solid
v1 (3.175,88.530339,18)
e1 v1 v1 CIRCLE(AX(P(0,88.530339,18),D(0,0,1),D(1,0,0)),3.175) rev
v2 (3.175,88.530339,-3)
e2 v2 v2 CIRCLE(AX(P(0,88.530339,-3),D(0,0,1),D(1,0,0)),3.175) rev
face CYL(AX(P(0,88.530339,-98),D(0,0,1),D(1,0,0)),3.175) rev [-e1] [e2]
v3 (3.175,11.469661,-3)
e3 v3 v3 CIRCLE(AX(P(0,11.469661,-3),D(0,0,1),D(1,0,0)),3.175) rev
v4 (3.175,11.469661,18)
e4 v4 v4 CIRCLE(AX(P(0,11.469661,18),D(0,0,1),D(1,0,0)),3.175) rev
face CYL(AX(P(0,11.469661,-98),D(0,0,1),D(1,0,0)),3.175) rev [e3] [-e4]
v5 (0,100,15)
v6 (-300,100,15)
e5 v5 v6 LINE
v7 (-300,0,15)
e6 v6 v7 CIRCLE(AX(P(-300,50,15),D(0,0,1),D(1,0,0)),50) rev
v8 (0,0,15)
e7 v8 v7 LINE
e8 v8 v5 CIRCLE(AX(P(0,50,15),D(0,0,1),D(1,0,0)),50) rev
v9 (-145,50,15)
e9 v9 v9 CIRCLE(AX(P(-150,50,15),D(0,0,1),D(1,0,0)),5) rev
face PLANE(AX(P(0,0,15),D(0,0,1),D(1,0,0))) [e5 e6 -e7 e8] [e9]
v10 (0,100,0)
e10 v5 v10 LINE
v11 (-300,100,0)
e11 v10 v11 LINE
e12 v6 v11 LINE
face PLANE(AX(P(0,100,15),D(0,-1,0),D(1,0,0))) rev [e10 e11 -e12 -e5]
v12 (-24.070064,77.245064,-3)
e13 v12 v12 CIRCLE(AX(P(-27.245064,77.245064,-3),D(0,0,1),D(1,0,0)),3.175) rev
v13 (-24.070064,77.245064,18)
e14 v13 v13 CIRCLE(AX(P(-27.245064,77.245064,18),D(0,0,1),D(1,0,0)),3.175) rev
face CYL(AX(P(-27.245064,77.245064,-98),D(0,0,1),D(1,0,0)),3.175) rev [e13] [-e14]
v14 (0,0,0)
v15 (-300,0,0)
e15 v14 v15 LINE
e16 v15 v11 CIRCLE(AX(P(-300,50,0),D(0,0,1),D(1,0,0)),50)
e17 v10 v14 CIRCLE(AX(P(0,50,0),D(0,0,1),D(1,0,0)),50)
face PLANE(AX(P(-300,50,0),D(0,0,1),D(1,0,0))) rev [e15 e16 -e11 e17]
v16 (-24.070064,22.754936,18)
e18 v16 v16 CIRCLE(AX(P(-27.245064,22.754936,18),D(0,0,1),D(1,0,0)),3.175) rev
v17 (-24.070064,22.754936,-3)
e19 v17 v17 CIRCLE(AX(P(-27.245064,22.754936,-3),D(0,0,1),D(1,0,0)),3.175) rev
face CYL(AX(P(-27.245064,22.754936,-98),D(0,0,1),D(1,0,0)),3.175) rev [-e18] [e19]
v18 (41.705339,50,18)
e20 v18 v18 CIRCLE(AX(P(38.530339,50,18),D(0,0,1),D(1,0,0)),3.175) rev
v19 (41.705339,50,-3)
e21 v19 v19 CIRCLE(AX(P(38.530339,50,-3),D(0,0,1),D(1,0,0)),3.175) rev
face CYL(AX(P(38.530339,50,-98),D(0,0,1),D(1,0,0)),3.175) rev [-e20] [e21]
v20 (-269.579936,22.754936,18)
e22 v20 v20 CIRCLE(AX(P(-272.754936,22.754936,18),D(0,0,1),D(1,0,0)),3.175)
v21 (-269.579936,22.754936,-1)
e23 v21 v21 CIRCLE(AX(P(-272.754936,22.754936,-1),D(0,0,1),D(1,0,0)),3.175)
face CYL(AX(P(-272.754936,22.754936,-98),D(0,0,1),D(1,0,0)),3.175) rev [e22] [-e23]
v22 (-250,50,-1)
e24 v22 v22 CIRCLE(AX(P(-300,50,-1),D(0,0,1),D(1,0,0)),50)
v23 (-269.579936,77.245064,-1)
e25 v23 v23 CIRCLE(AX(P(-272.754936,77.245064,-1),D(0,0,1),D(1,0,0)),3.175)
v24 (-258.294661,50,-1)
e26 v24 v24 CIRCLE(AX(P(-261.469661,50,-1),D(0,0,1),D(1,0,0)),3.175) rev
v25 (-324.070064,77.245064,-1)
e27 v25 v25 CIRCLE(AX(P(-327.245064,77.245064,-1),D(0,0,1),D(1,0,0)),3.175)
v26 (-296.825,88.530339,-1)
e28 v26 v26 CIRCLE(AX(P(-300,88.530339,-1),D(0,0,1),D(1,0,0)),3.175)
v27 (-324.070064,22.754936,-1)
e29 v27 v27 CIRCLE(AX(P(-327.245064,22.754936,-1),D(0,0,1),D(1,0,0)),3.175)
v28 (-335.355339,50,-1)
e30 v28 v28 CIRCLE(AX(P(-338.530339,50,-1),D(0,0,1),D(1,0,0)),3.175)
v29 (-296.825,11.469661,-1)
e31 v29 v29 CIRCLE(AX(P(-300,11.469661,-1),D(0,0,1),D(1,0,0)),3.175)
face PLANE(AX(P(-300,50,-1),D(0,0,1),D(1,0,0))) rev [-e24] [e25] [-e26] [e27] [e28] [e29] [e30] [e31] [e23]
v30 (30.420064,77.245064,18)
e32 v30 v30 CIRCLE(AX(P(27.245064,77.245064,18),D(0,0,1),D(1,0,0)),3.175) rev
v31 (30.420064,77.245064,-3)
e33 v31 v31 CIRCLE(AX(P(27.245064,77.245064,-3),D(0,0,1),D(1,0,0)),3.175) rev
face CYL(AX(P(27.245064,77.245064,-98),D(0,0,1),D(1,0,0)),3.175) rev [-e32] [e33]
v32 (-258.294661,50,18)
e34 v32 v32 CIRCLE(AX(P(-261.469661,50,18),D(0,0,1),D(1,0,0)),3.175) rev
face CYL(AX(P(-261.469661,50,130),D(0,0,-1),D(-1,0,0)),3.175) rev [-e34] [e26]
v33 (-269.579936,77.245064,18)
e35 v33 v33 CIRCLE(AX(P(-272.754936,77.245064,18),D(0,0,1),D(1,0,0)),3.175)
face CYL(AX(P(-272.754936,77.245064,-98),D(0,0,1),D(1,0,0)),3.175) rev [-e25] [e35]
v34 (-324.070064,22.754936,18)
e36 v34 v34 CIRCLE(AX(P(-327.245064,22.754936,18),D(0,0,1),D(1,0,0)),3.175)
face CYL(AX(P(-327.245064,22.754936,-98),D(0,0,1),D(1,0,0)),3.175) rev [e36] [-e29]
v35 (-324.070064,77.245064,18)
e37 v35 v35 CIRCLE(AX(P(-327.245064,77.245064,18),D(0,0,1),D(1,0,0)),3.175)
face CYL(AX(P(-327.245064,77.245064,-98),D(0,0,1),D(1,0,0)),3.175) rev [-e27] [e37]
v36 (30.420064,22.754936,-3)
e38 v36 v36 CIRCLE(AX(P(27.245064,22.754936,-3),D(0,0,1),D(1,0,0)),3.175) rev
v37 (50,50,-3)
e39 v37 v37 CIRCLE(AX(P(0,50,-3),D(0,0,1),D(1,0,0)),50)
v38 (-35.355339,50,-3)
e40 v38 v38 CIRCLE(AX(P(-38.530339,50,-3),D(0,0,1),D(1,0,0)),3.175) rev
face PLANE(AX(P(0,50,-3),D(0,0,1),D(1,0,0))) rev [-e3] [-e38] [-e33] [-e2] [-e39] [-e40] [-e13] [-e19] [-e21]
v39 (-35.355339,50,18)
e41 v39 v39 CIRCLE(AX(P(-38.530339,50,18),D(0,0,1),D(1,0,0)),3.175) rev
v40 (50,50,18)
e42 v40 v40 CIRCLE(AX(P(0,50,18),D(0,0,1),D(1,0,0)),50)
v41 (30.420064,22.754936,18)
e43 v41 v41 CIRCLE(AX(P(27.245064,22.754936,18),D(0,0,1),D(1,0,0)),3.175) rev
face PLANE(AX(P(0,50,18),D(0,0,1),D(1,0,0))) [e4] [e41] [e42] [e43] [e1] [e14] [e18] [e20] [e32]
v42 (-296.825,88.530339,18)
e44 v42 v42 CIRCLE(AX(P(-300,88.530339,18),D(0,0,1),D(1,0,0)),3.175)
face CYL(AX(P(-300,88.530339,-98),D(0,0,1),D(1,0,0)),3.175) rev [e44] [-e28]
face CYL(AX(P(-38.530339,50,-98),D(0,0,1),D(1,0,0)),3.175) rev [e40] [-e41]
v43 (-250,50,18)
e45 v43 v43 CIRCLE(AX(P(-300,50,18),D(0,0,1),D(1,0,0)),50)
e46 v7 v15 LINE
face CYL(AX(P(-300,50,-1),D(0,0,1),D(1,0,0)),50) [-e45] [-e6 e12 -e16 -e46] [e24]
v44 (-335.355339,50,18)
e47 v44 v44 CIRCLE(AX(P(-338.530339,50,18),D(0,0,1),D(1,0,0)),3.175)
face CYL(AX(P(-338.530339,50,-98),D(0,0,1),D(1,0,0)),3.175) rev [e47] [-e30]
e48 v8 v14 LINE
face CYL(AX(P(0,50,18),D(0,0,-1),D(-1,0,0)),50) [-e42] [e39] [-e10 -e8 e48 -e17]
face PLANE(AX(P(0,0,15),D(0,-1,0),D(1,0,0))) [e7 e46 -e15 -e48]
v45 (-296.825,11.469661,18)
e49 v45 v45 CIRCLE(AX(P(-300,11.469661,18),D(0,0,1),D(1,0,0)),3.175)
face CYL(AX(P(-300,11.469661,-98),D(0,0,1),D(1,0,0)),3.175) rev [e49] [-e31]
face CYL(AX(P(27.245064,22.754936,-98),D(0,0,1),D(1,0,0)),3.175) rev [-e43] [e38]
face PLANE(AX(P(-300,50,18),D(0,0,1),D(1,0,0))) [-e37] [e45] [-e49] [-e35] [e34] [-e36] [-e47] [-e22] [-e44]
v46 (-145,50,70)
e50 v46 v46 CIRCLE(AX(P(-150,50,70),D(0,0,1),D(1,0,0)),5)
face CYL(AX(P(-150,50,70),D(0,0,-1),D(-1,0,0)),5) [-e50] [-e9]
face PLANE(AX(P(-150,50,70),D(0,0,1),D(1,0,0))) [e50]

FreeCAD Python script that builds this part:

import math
import FreeCAD as App
import Part
import Sketcher

V = App.Vector


def add_polygon(sketch, points):
    """Adds a closed chain of lines whose ends are joined by coincident constraints."""
    first, n = sketch.GeometryCount, len(points)
    for a, b in zip(points, points[1:] + points[:1]):
        sketch.addGeometry(Part.LineSegment(App.Vector(*a, 0), App.Vector(*b, 0)), False)
    for i in range(n):
        sketch.addConstraint(Sketcher.Constraint("Coincident", first + i, 2, first + (i + 1) % n, 1))

doc = App.newDocument("Part")
params = doc.addObject("Spreadsheet::Sheet", "Params")
for row, (alias, value) in enumerate([
    ("sketch1_diameter", "100 mm"),
    ("pad1_length", "13 mm"),
    ("sketch2_diameter", "100 mm"),
    ("pad2_length", "13 mm"),
    ("sketch3_width", "300 mm"),
    ("sketch3_height", "100 mm"),
    ("pad3_length", "15 mm"),
    ("sketch4_diameter", "10 mm"),
    ("pad4_length", "70 mm"),
    ("sketch5_diameter", "100 mm"),
    ("pocket1_length", "41 mm"),
    ("sketch6_diameter", "100 mm"),
    ("pad5_length", "18 mm"),
    ("pad5_length2", "1 mm"),
    ("sketch7_diameter", "13 mm"),
    ("pocket2_length", "242.8 mm"),
    ("sketch8_diameter", "6.35 mm"),
    ("sketch9_diameter", "100 mm"),
    ("pocket4_length", "34 mm"),
    ("sketch10_diameter", "100 mm"),
    ("pad6_length", "18 mm"),
    ("pad6_length2", "3 mm"),
    ("sketch11_diameter", "6.35 mm"),
], start=1):
    params.set(f"A{row}", alias)
    params.set(f"B{row}", "=" + value)
    params.setAlias(f"B{row}", alias)

body = doc.addObject("PartDesign::Body", "Body")

# Sketch on XY plane
sketch1 = body.newObject("Sketcher::SketchObject", "Sketch")
sketch1.AttachmentSupport = (doc.getObject("XY_Plane"), [""])
sketch1.MapMode = "FlatFace"
sketch1.addGeometry(Part.Circle(V(0, 50, 0), V(0, 0, 1), 50), False)
sketch1.addConstraint(Sketcher.Constraint("PointOnObject", 0, 3, -2))
sketch1.addConstraint(Sketcher.Constraint("Diameter", 0, 100.0))
sketch1.addConstraint(Sketcher.Constraint("DistanceY", -1, 1, 0, 3, 50.0))
sketch1.setExpression("Constraints[1]", "Params.sketch1_diameter")
pad1 = body.newObject("PartDesign::Pad", "Pad")
pad1.Profile = sketch1
pad1.setExpression("Length", "Params.pad1_length")
body2 = doc.addObject("PartDesign::Body", "Body001")

# Sketch on XY plane
sketch2 = body2.newObject("Sketcher::SketchObject", "Sketch001")
sketch2.AttachmentSupport = (doc.getObject("XY_Plane001"), [""])
sketch2.MapMode = "FlatFace"
sketch2.addGeometry(Part.Circle(V(-300, 50, 0), V(0, 0, 1), 50), False)
sketch2.addConstraint(Sketcher.Constraint("Diameter", 0, 100.0))
sketch2.addConstraint(Sketcher.Constraint("DistanceX", 0, 3, -1, 1, 300.0))
sketch2.addConstraint(Sketcher.Constraint("DistanceY", -1, 1, 0, 3, 50.0))
sketch2.setExpression("Constraints[0]", "Params.sketch2_diameter")
pad2 = body2.newObject("PartDesign::Pad", "Pad001")
pad2.Profile = sketch2
pad2.setExpression("Length", "Params.pad2_length")
body.AllowCompound = True
doc.recompute()

boolean = body.newObject("PartDesign::Boolean", "Boolean")
boolean.Type = "Fuse"
boolean.addObjects([body2])

# Sketch on XY plane
sketch3 = body.newObject("Sketcher::SketchObject", "Sketch002")
sketch3.AttachmentSupport = (doc.getObject("XY_Plane"), [""])
sketch3.MapMode = "FlatFace"
add_polygon(sketch3, [(-300, 100), (-300, 0), (0, 0), (0, 100)])  # lines 0-3
sketch3.addConstraint(Sketcher.Constraint("Vertical", 0))
sketch3.addConstraint(Sketcher.Constraint("Horizontal", 1))
sketch3.addConstraint(Sketcher.Constraint("Vertical", 2))
sketch3.addConstraint(Sketcher.Constraint("Horizontal", 3))
sketch3.addConstraint(Sketcher.Constraint("Coincident", 1, 2, -1, 1))
sketch3.addConstraint(Sketcher.Constraint("DistanceX", 1, 1, 1, 2, 300.0))
sketch3.addConstraint(Sketcher.Constraint("DistanceY", 0, 2, 0, 1, 100.0))
sketch3.setExpression("Constraints[9]", "Params.sketch3_width")
sketch3.setExpression("Constraints[10]", "Params.sketch3_height")
pad3 = body.newObject("PartDesign::Pad", "Pad002")
pad3.Profile = sketch3
pad3.setExpression("Length", "Params.pad3_length")

# Sketch on XY plane
sketch4 = body.newObject("Sketcher::SketchObject", "Sketch003")
sketch4.AttachmentSupport = (doc.getObject("XY_Plane"), [""])
sketch4.MapMode = "FlatFace"
sketch4.addGeometry(Part.Circle(V(-150, 50, 0), V(0, 0, 1), 5), False)
sketch4.addConstraint(Sketcher.Constraint("Diameter", 0, 10.0))
sketch4.addConstraint(Sketcher.Constraint("DistanceX", 0, 3, -1, 1, 150.0))
sketch4.addConstraint(Sketcher.Constraint("DistanceY", -1, 1, 0, 3, 50.0))
sketch4.setExpression("Constraints[0]", "Params.sketch4_diameter")
pad4 = body.newObject("PartDesign::Pad", "Pad003")
pad4.Profile = sketch4
pad4.setExpression("Length", "Params.pad4_length")

# Sketch on XY plane
sketch5 = body.newObject("Sketcher::SketchObject", "Sketch004")
sketch5.AttachmentSupport = (doc.getObject("XY_Plane"), [""])
sketch5.MapMode = "FlatFace"
sketch5.addGeometry(Part.Circle(V(-300, 50, 0), V(0, 0, 1), 50), False)
sketch5.addConstraint(Sketcher.Constraint("Diameter", 0, 100.0))
sketch5.addConstraint(Sketcher.Constraint("DistanceX", 0, 3, -1, 1, 300.0))
sketch5.addConstraint(Sketcher.Constraint("DistanceY", -1, 1, 0, 3, 50.0))
sketch5.setExpression("Constraints[0]", "Params.sketch5_diameter")
pocket1 = body.newObject("PartDesign::Pocket", "Pocket")
pocket1.Profile = sketch5
pocket1.setExpression("Length", "Params.pocket1_length")
pocket1.Reversed = True

# Sketch on XY plane
sketch6 = body.newObject("Sketcher::SketchObject", "Sketch005")
sketch6.AttachmentSupport = (doc.getObject("XY_Plane"), [""])
sketch6.MapMode = "FlatFace"
sketch6.addGeometry(Part.Circle(V(-300, 50, 0), V(0, 0, 1), 50), False)
sketch6.addConstraint(Sketcher.Constraint("Diameter", 0, 100.0))
sketch6.addConstraint(Sketcher.Constraint("DistanceX", 0, 3, -1, 1, 300.0))
sketch6.addConstraint(Sketcher.Constraint("DistanceY", -1, 1, 0, 3, 50.0))
sketch6.setExpression("Constraints[0]", "Params.sketch6_diameter")
pad5 = body.newObject("PartDesign::Pad", "Pad004")
pad5.Profile = sketch6
pad5.Type = "TwoLengths"
pad5.setExpression("Length", "Params.pad5_length")
pad5.setExpression("Length2", "Params.pad5_length2")

# Sketch on XY plane
sketch7 = body.newObject("Sketcher::SketchObject", "Sketch006")
sketch7.AttachmentSupport = (doc.getObject("XY_Plane"), [""])
sketch7.MapMode = "FlatFace"
sketch7.addGeometry(Part.Circle(V(0, 50, 0), V(0, 0, 1), 6), False)
sketch7.addConstraint(Sketcher.Constraint("PointOnObject", 0, 3, -2))
sketch7.addConstraint(Sketcher.Constraint("Diameter", 0, 13.0))
sketch7.addConstraint(Sketcher.Constraint("DistanceY", -1, 1, 0, 3, 50.0))
sketch7.setExpression("Constraints[1]", "Params.sketch7_diameter")
pocket2 = body.newObject("PartDesign::Pocket", "Pocket001")
pocket2.Profile = sketch7
pocket2.setExpression("Length", "Params.pocket2_length")
pocket2.Reversed = True

# Sketch on XY plane
sketch8 = body.newObject("Sketcher::SketchObject", "Sketch007")
sketch8.AttachmentSupport = (doc.getObject("XY_Plane"), [""])
sketch8.MapMode = "FlatFace"
sketch8.addGeometry(Part.Circle(V(-261.5, 50, 0), V(0, 0, 1), 3.2), False)
sketch8.addConstraint(Sketcher.Constraint("Diameter", 0, 6.35))
sketch8.addConstraint(Sketcher.Constraint("DistanceY", -1, 1, 0, 3, 50.0))
sketch8.addConstraint(Sketcher.Constraint("DistanceX", 0, 3, -1, 1, 261.469661))
sketch8.setExpression("Constraints[0]", "Params.sketch8_diameter")
pocket3 = body.newObject("PartDesign::Pocket", "Pocket002")
pocket3.Profile = sketch8
pocket3.Type = "ThroughAll"
pocket3.Midplane = True

# Sketch on XY plane
sketch9 = body.newObject("Sketcher::SketchObject", "Sketch008")
sketch9.AttachmentSupport = (doc.getObject("XY_Plane"), [""])
sketch9.MapMode = "FlatFace"
sketch9.addGeometry(Part.Circle(V(0, 50, 0), V(0, 0, 1), 50), False)
sketch9.addConstraint(Sketcher.Constraint("PointOnObject", 0, 3, -2))
sketch9.addConstraint(Sketcher.Constraint("Diameter", 0, 100.0))
sketch9.addConstraint(Sketcher.Constraint("DistanceY", -1, 1, 0, 3, 50.0))
sketch9.setExpression("Constraints[1]", "Params.sketch9_diameter")
pocket4 = body.newObject("PartDesign::Pocket", "Pocket003")
pocket4.Profile = sketch9
pocket4.setExpression("Length", "Params.pocket4_length")
pocket4.Reversed = True

# Sketch on XY plane
sketch10 = body.newObject("Sketcher::SketchObject", "Sketch009")
sketch10.AttachmentSupport = (doc.getObject("XY_Plane"), [""])
sketch10.MapMode = "FlatFace"
sketch10.addGeometry(Part.Circle(V(0, 50, 0), V(0, 0, 1), 50), False)
sketch10.addConstraint(Sketcher.Constraint("PointOnObject", 0, 3, -2))
sketch10.addConstraint(Sketcher.Constraint("Diameter", 0, 100.0))
sketch10.addConstraint(Sketcher.Constraint("DistanceY", -1, 1, 0, 3, 50.0))
sketch10.setExpression("Constraints[1]", "Params.sketch10_diameter")
pad6 = body.newObject("PartDesign::Pad", "Pad005")
pad6.Profile = sketch10
pad6.Type = "TwoLengths"
pad6.setExpression("Length", "Params.pad6_length")
pad6.setExpression("Length2", "Params.pad6_length2")

# Sketch on XY plane
sketch11 = body.newObject("Sketcher::SketchObject", "Sketch010")
sketch11.AttachmentSupport = (doc.getObject("XY_Plane"), [""])
sketch11.MapMode = "FlatFace"
sketch11.addGeometry(Part.Circle(V(-272.8, 77.2, 0), V(0, 0, 1), 3.2), False)
sketch11.addGeometry(Part.ArcOfCircle(Part.Circle(V(-300, 88.5, 0), V(0, 0, 1), 3.2), math.radians(0), math.radians(90)), False)
sketch11.addGeometry(Part.ArcOfCircle(Part.Circle(V(-300, 88.5, 0), V(0, 0, 1), 3.2), math.radians(90), math.radians(270)), False)
sketch11.addGeometry(Part.ArcOfCircle(Part.Circle(V(-300, 88.5, 0), V(0, 0, 1), 3.2), math.radians(-90), math.radians(0)), False)
sketch11.addGeometry(Part.Circle(V(-327.2, 77.2, 0), V(0, 0, 1), 3.2), False)
sketch11.addGeometry(Part.Circle(V(-338.5, 50, 0), V(0, 0, 1), 3.2), False)
sketch11.addGeometry(Part.ArcOfCircle(Part.Circle(V(-327.2, 22.8, 0), V(0, 0, 1), 3.2), math.radians(45), math.radians(225)), False)
sketch11.addGeometry(Part.ArcOfCircle(Part.Circle(V(-327.2, 22.8, 0), V(0, 0, 1), 3.2), math.radians(-135), math.radians(0)), False)
sketch11.addGeometry(Part.ArcOfCircle(Part.Circle(V(-327.2, 22.8, 0), V(0, 0, 1), 3.2), math.radians(0), math.radians(45)), False)
sketch11.addGeometry(Part.ArcOfCircle(Part.Circle(V(-300, 11.5, 0), V(0, 0, 1), 3.2), math.radians(90), math.radians(270)), False)
sketch11.addGeometry(Part.ArcOfCircle(Part.Circle(V(-300, 11.5, 0), V(0, 0, 1), 3.2), math.radians(-90), math.radians(0)), False)
sketch11.addGeometry(Part.ArcOfCircle(Part.Circle(V(-300, 11.5, 0), V(0, 0, 1), 3.2), math.radians(0), math.radians(90)), False)
sketch11.addGeometry(Part.Circle(V(-272.8, 22.8, 0), V(0, 0, 1), 3.2), False)
sketch11.addGeometry(Part.Circle(V(-261.5, 50, 0), V(0, 0, 1), 3.2), False)
sketch11.addGeometry(Part.Circle(V(-27.2, 22.8, 0), V(0, 0, 1), 3.2), False)
sketch11.addGeometry(Part.Circle(V(-38.5, 50, 0), V(0, 0, 1), 3.2), False)
sketch11.addGeometry(Part.Circle(V(-27.2, 77.2, 0), V(0, 0, 1), 3.2), False)
sketch11.addGeometry(Part.ArcOfCircle(Part.Circle(V(0, 88.5, 0), V(0, 0, 1), 3.2), math.radians(0), math.radians(90)), False)
sketch11.addGeometry(Part.ArcOfCircle(Part.Circle(V(0, 88.5, 0), V(0, 0, 1), 3.2), math.radians(90), math.radians(270)), False)
sketch11.addGeometry(Part.ArcOfCircle(Part.Circle(V(0, 88.5, 0), V(0, 0, 1), 3.2), math.radians(-90), math.radians(0)), False)
sketch11.addGeometry(Part.Circle(V(27.2, 77.2, 0), V(0, 0, 1), 3.2), False)
sketch11.addGeometry(Part.Circle(V(27.2, 22.8, 0), V(0, 0, 1), 3.2), False)
sketch11.addGeometry(Part.Circle(V(38.5, 50, 0), V(0, 0, 1), 3.2), False)
sketch11.addGeometry(Part.ArcOfCircle(Part.Circle(V(0, 11.5, 0), V(0, 0, 1), 3.2), math.radians(90), math.radians(270)), False)
sketch11.addGeometry(Part.ArcOfCircle(Part.Circle(V(0, 11.5, 0), V(0, 0, 1), 3.2), math.radians(-90), math.radians(0)), False)
sketch11.addGeometry(Part.ArcOfCircle(Part.Circle(V(0, 11.5, 0), V(0, 0, 1), 3.2), math.radians(0), math.radians(90)), False)
sketch11.addConstraint(Sketcher.Constraint("Tangent", 1, 2, 2, 1))
sketch11.addConstraint(Sketcher.Constraint("Tangent", 2, 2, 3, 1))
sketch11.addConstraint(Sketcher.Constraint("Tangent", 3, 2, 1, 1))
sketch11.addConstraint(Sketcher.Constraint("Tangent", 6, 2, 7, 1))
sketch11.addConstraint(Sketcher.Constraint("Tangent", 7, 2, 8, 1))
sketch11.addConstraint(Sketcher.Constraint("Tangent", 8, 2, 6, 1))
sketch11.addConstraint(Sketcher.Constraint("Tangent", 9, 2, 10, 1))
sketch11.addConstraint(Sketcher.Constraint("Tangent", 10, 2, 11, 1))
sketch11.addConstraint(Sketcher.Constraint("Tangent", 11, 2, 9, 1))
sketch11.addConstraint(Sketcher.Constraint("Tangent", 17, 2, 18, 1))
sketch11.addConstraint(Sketcher.Constraint("Tangent", 18, 2, 19, 1))
sketch11.addConstraint(Sketcher.Constraint("Tangent", 19, 2, 17, 1))
sketch11.addConstraint(Sketcher.Constraint("Tangent", 23, 2, 24, 1))
sketch11.addConstraint(Sketcher.Constraint("Tangent", 24, 2, 25, 1))
sketch11.addConstraint(Sketcher.Constraint("Tangent", 25, 2, 23, 1))
sketch11.addConstraint(Sketcher.Constraint("Equal", 0, 1))
sketch11.addConstraint(Sketcher.Constraint("Equal", 3, 4))
sketch11.addConstraint(Sketcher.Constraint("Equal", 4, 5))
sketch11.addConstraint(Sketcher.Constraint("Equal", 5, 6))
sketch11.addConstraint(Sketcher.Constraint("Equal", 8, 9))
sketch11.addConstraint(Sketcher.Constraint("Equal", 11, 12))
sketch11.addConstraint(Sketcher.Constraint("Equal", 12, 13))
sketch11.addConstraint(Sketcher.Constraint("Equal", 13, 14))
sketch11.addConstraint(Sketcher.Constraint("Equal", 14, 15))
sketch11.addConstraint(Sketcher.Constraint("Equal", 15, 16))
sketch11.addConstraint(Sketcher.Constraint("Equal", 16, 17))
sketch11.addConstraint(Sketcher.Constraint("Equal", 19, 20))
sketch11.addConstraint(Sketcher.Constraint("Equal", 20, 21))
sketch11.addConstraint(Sketcher.Constraint("Equal", 21, 22))
sketch11.addConstraint(Sketcher.Constraint("Equal", 22, 23))
sketch11.addConstraint(Sketcher.Constraint("Symmetric", 16, 3, 20, 3, -2))
sketch11.addConstraint(Sketcher.Constraint("Symmetric", 14, 3, 21, 3, -2))
sketch11.addConstraint(Sketcher.Constraint("Symmetric", 15, 3, 22, 3, -2))
sketch11.addConstraint(Sketcher.Constraint("PointOnObject", 17, 3, -2))
sketch11.addConstraint(Sketcher.Constraint("PointOnObject", 23, 3, -2))
sketch11.addConstraint(Sketcher.Constraint("PointOnObject", 17, 2, -2))
sketch11.addConstraint(Sketcher.Constraint("PointOnObject", 18, 2, -2))
sketch11.addConstraint(Sketcher.Constraint("PointOnObject", 23, 2, -2))
sketch11.addConstraint(Sketcher.Constraint("PointOnObject", 25, 2, -2))
sketch11.addConstraint(Sketcher.Constraint("Horizontal", 0, 3, 4, 3))
sketch11.addConstraint(Sketcher.Constraint("Horizontal", 8, 3, 12, 3))
sketch11.addConstraint(Sketcher.Constraint("Horizontal", 5, 3, 13, 3))
sketch11.addConstraint(Sketcher.Constraint("Horizontal", 12, 3, 14, 3))
sketch11.addConstraint(Sketcher.Constraint("Horizontal", 13, 3, 15, 3))
sketch11.addConstraint(Sketcher.Constraint("Horizontal", 4, 3, 16, 3))
sketch11.addConstraint(Sketcher.Constraint("Horizontal", 3, 3, 17, 3))
sketch11.addConstraint(Sketcher.Constraint("Horizontal", 11, 3, 23, 3))
sketch11.addConstraint(Sketcher.Constraint("Horizontal", 19, 3, 3, 2))
sketch11.addConstraint(Sketcher.Constraint("Horizontal", 21, 3, 7, 2))
sketch11.addConstraint(Sketcher.Constraint("Horizontal", 25, 3, 10, 2))
sketch11.addConstraint(Sketcher.Constraint("Horizontal", 3, 2, 19, 2))
sketch11.addConstraint(Sketcher.Constraint("Horizontal", 10, 2, 24, 2))
sketch11.addConstraint(Sketcher.Constraint("Vertical", 4, 3, 6, 3))
sketch11.addConstraint(Sketcher.Constraint("Vertical", 3, 3, 9, 3))
sketch11.addConstraint(Sketcher.Constraint("Vertical", 0, 3, 12, 3))
sketch11.addConstraint(Sketcher.Constraint("Vertical", 14, 3, 16, 3))
sketch11.addConstraint(Sketcher.Constraint("Vertical", 11, 3, 1, 2))
sketch11.addConstraint(Sketcher.Constraint("Vertical", 1, 2, 2, 2))
sketch11.addConstraint(Sketcher.Constraint("Vertical", 2, 2, 9, 2))
sketch11.addConstraint(Sketcher.Constraint("Vertical", 9, 2, 11, 2))
sketch11.addConstraint(Sketcher.Constraint("Diameter", 0, 6.35))
sketch11.addConstraint(Sketcher.Constraint("DistanceX", 1, 3, -1, 1, 300.0))
sketch11.addConstraint(Sketcher.Constraint("DistanceY", -1, 1, 5, 3, 50.0))
sketch11.addConstraint(Sketcher.Constraint("DistanceX", 8, 2, -1, 1, 325.0))
sketch11.addConstraint(Sketcher.Constraint("DistanceY", -1, 1, 8, 2, 25.0))
sketch11.addConstraint(Sketcher.Constraint("DistanceY", -1, 1, 1, 3, 88.530339))
sketch11.addConstraint(Sketcher.Constraint("DistanceX", 5, 3, -1, 1, 338.530339))
sketch11.addConstraint(Sketcher.Constraint("DistanceY", -1, 1, 9, 3, 11.469661))
sketch11.addConstraint(Sketcher.Constraint("DistanceX", 13, 3, -1, 1, 261.469661))
sketch11.addConstraint(Sketcher.Constraint("DistanceX", 15, 3, -1, 1, 38.530339))
sketch11.addConstraint(Sketcher.Constraint("DistanceX", 6, 2, -1, 1, 329.490128))
sketch11.addConstraint(Sketcher.Constraint("DistanceX", 4, 3, 0, 3, 54.490128))
sketch11.addConstraint(Sketcher.Constraint("DistanceY", 6, 3, 4, 3, 54.490128))
sketch11.addConstraint(Sketcher.Constraint("DistanceX", 12, 3, 14, 3, 245.509872))
sketch11.addConstraint(Sketcher.Constraint("DistanceX", 16, 3, 20, 3, 54.490128))
sketch11.setExpression("Constraints[60]", "Params.sketch11_diameter")
pocket5 = body.newObject("PartDesign::Pocket", "Pocket004")
pocket5.Profile = sketch11
pocket5.Type = "ThroughAll"
pocket5.Midplane = True

doc.recompute()
